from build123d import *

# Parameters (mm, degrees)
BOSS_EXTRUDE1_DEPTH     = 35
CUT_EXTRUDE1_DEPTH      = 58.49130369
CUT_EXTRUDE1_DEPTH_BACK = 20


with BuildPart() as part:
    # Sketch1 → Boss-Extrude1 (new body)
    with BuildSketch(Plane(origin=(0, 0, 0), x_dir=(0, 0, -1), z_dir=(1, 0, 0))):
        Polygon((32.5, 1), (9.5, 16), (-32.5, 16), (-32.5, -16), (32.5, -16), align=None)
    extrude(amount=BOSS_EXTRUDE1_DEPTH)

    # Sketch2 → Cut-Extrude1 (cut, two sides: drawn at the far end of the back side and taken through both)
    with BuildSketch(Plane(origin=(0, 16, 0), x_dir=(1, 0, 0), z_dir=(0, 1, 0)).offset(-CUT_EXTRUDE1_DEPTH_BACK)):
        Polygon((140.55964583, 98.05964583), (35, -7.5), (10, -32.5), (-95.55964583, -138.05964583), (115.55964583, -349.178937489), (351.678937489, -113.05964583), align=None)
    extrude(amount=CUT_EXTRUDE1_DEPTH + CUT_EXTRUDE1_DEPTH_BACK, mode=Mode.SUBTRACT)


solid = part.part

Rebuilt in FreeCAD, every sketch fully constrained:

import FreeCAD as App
import Part
import Sketcher
from FreeCAD import Vector
Q = App.Units.Quantity


def add_polygon(sketch, points):
    """Adds a closed chain of lines whose ends are joined by coincident constraints."""
    first, n = sketch.GeometryCount, len(points)
    for a, b in zip(points, points[1:] + points[:1]):
        sketch.addGeometry(Part.LineSegment(App.Vector(*a, 0), App.Vector(*b, 0)), False)
    for i in range(n):
        sketch.addConstraint(Sketcher.Constraint("Coincident", first + i, 2, first + (i + 1) % n, 1))

doc = App.newDocument("Part")
body = doc.addObject("PartDesign::Body", "Body")

# Sketch on YZ plane
sketch1 = doc.addObject("Sketcher::SketchObject", "Sketch")
body.addObject(sketch1)
sketch1.AttachmentSupport = (doc.YZ_Plane, [""])
sketch1.MapMode = "FlatFace"
add_polygon(sketch1, [(1, -32.5), (16, -9.5), (16, 32.5), (-16, 32.5), (-16, -32.5)])  # lines 0-4
sketch1.addConstraint(Sketcher.Constraint("Vertical", 1))
sketch1.addConstraint(Sketcher.Constraint("Horizontal", 2))
sketch1.addConstraint(Sketcher.Constraint("Vertical", 3))
sketch1.addConstraint(Sketcher.Constraint("Horizontal", 4))
sketch1.addConstraint(Sketcher.Constraint("Symmetric", 1, 2, 3, 2, -1, 1))
sketch1.addConstraint(Sketcher.Constraint("DistanceX", 2, 2, 2, 1, 32.0))
sketch1.addConstraint(Sketcher.Constraint("DistanceX", 4, 1, 4, 2, 17.0))
sketch1.addConstraint(Sketcher.Constraint("DistanceY", 1, 1, 1, 2, 42.0))
sketch1.addConstraint(Sketcher.Constraint("DistanceY", 3, 2, 3, 1, 65.0))
pad1 = doc.addObject("PartDesign::Pad", "Pad")
body.addObject(pad1)
pad1.Profile = sketch1
pad1.Length = 35

# Sketch on XZ plane
sketch2 = doc.addObject("Sketcher::SketchObject", "Sketch001")
body.addObject(sketch2)
sketch2.AttachmentSupport = (doc.XZ_Plane, [""])
sketch2.MapMode = "FlatFace"
sketch2.AttachmentOffset = App.Placement(Vector(0, 0, -16), App.Rotation())
add_polygon(sketch2, [(140.559646, -98.059646), (-95.559646, 138.059646), (115.559646, 349.178937), (351.678937, 113.059646)])  # lines 0-3
sketch2.addConstraint(Sketcher.Constraint("Perpendicular", 0, 1))
sketch2.addConstraint(Sketcher.Constraint("Perpendicular", 1, 2))
sketch2.addConstraint(Sketcher.Constraint("Perpendicular", 2, 3))
sketch2.addConstraint(Sketcher.Constraint("Angle", 0, Q("135 deg")))
sketch2.addConstraint(Sketcher.Constraint("DistanceY", 2, 2, 0, 2, 25.0))
sketch2.addConstraint(Sketcher.Constraint("DistanceX", 0, 2, 1, 2, 211.119292))
sketch2.addConstraint(Sketcher.Constraint("DistanceX", 0, 2, -1, 1, 95.559646))
sketch2.addConstraint(Sketcher.Constraint("DistanceY", -1, 1, 0, 2, 138.059646))
pocket1 = doc.addObject("PartDesign::Pocket", "Pocket")
body.addObject(pocket1)
pocket1.Profile = sketch2
pocket1.Type = "TwoLengths"
pocket1.Length = 58.491304
pocket1.Length2 = 20

doc.recompute()
